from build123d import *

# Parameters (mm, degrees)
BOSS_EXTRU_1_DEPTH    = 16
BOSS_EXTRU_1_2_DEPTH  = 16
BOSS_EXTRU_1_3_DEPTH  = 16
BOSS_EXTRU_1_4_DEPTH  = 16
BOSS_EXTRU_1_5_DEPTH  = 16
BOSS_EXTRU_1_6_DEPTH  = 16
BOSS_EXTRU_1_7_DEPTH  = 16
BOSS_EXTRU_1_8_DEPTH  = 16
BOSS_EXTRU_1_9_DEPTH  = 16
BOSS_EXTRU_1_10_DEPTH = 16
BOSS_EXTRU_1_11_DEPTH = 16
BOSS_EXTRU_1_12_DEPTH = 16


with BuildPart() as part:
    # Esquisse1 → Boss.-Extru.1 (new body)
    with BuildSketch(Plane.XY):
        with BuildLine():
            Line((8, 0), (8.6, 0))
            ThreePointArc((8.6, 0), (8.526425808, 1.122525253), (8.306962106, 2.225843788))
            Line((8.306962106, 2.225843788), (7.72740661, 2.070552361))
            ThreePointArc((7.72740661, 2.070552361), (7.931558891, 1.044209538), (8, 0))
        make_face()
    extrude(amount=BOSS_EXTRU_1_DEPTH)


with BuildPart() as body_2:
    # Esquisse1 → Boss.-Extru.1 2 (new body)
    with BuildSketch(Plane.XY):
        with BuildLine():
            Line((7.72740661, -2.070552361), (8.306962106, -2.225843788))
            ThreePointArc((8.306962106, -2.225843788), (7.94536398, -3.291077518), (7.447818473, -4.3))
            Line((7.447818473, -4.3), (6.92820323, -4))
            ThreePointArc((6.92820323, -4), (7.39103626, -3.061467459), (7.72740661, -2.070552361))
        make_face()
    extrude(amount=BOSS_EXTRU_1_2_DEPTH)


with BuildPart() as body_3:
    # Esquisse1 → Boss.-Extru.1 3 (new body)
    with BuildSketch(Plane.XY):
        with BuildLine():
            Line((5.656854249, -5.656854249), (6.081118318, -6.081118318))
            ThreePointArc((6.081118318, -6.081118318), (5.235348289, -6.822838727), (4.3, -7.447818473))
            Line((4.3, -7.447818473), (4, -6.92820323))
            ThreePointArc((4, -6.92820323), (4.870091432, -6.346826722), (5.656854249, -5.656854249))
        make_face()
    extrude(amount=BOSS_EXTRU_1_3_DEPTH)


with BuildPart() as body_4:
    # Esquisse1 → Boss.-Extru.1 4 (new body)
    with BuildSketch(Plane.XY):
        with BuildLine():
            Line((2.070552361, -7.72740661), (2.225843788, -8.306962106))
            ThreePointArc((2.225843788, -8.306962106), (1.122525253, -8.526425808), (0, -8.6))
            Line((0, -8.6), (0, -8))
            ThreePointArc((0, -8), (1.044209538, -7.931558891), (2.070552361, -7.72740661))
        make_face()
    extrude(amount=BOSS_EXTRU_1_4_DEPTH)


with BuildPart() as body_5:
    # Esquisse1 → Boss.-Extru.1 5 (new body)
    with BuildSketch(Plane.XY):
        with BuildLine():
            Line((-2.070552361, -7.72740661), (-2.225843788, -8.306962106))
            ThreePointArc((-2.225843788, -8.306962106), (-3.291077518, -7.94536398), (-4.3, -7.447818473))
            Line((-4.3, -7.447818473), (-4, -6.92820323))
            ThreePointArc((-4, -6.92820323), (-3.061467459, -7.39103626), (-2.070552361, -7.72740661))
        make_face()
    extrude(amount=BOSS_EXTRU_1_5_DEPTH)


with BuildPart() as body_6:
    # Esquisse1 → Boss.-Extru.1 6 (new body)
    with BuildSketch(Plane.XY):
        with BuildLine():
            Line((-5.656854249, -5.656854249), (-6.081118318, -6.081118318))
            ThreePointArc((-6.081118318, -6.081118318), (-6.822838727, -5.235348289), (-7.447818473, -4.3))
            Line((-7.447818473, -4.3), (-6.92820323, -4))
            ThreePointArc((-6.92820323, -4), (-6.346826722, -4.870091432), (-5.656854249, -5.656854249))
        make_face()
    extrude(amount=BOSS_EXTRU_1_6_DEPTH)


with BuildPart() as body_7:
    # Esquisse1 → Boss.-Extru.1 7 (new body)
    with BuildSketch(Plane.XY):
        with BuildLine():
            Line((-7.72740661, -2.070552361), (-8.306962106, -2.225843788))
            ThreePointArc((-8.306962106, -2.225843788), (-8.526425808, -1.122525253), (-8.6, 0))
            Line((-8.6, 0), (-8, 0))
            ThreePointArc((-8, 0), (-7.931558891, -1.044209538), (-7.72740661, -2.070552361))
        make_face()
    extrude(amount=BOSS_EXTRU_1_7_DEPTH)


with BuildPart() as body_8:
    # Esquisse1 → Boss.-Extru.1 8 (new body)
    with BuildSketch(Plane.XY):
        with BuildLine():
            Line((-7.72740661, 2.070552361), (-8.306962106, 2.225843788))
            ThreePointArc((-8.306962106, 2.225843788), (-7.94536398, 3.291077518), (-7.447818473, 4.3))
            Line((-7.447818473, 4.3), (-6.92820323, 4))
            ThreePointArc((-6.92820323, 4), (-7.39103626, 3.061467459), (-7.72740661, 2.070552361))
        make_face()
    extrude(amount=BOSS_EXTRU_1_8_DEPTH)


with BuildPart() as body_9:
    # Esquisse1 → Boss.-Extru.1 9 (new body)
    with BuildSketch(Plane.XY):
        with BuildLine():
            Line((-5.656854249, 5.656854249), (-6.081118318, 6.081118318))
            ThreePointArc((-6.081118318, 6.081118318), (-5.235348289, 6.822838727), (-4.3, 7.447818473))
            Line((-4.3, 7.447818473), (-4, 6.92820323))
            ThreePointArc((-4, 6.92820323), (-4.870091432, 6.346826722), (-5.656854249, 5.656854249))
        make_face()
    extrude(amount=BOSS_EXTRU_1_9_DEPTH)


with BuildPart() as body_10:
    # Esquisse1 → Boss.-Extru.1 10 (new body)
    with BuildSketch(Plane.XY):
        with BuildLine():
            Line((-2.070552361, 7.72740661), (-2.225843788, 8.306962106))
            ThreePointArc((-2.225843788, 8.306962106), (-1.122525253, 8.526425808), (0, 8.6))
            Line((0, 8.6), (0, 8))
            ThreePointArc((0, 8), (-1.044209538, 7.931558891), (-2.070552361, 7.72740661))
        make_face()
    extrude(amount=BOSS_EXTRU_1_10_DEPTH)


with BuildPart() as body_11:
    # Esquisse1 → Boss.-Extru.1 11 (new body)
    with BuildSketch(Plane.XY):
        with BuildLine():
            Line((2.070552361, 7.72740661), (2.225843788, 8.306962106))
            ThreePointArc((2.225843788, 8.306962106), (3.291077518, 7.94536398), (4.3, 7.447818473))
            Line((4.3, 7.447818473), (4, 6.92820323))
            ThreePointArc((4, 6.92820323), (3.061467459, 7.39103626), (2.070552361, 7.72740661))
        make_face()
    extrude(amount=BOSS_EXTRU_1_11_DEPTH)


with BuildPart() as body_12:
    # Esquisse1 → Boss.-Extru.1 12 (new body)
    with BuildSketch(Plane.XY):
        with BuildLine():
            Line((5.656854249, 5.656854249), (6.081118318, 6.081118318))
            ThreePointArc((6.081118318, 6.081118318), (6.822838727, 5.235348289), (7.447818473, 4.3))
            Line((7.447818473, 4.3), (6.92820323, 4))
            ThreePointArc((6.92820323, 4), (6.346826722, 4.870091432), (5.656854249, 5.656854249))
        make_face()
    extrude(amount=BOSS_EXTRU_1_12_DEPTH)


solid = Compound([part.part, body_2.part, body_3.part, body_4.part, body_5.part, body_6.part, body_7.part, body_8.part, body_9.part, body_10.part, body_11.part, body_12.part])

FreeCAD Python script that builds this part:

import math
import FreeCAD as App
import Part
import Sketcher

V = App.Vector
Q = App.Units.Quantity

doc = App.newDocument("Part")
body = doc.addObject("PartDesign::Body", "Body")

sketch1 = body.newObject("Sketcher::SketchObject", "Sketch")
sketch1.AttachmentSupport = (doc.getObject("XY_Plane"), [""])
sketch1.MapMode = "FlatFace"
sketch1.addGeometry([
    Part.LineSegment(V(8, 0, 0), V(8.6, 0, 0)),
    Part.ArcOfCircle(Part.Circle(V(0, 0, 0), V(0, 0, 1), 8.6), math.radians(0), math.radians(15)),
    Part.LineSegment(V(8.3, 2.2, 0), V(7.7, 2.1, 0)),
    Part.ArcOfCircle(Part.Circle(V(0, 0, 0), V(0, 0, 1), 8), math.radians(0), math.radians(15)),
], False)
sketch1.addConstraint([
    Sketcher.Constraint("Coincident", 0, 2, 1, 1),
    Sketcher.Constraint("Coincident", 1, 2, 2, 1),
    Sketcher.Constraint("Coincident", 2, 2, 3, 2),
    Sketcher.Constraint("Coincident", 3, 1, 0, 1),
    Sketcher.Constraint("Horizontal", 0),
    Sketcher.Constraint("Coincident", 1, 3, -1, 1),
    Sketcher.Constraint("Coincident", 3, 3, -1, 1),
    Sketcher.Constraint("PointOnObject", 0, 2, -1),
    Sketcher.Constraint("Radius", 3, 8.0),
    Sketcher.Constraint("Radius", 1, 8.6),
    Sketcher.Constraint("Angle", 2, Q("-165 deg")),
    Sketcher.Constraint("DistanceX", -1, 1, 1, 2, 8.306962),
])
pad1 = body.newObject("PartDesign::Pad", "Pad")
pad1.Profile = sketch1
pad1.Length = 16
body2 = doc.addObject("PartDesign::Body", "Body001")

sketch2 = body2.newObject("Sketcher::SketchObject", "Sketch001")
sketch2.AttachmentSupport = (doc.getObject("XY_Plane001"), [""])
sketch2.MapMode = "FlatFace"
sketch2.addGeometry([
    Part.LineSegment(V(8.3, -2.2, 0), V(7.7, -2.1, 0)),
    Part.ArcOfCircle(Part.Circle(V(0, 0, 0), V(0, 0, 1), 8), math.radians(-30), math.radians(-15)),
    Part.LineSegment(V(6.9, -4, 0), V(7.4, -4.3, 0)),
    Part.ArcOfCircle(Part.Circle(V(0, 0, 0), V(0, 0, 1), 8.6), math.radians(-30), math.radians(-15)),
], False)
sketch2.addConstraint([
    Sketcher.Constraint("Coincident", 0, 2, 1, 2),
    Sketcher.Constraint("Coincident", 1, 1, 2, 1),
    Sketcher.Constraint("Coincident", 2, 2, 3, 1),
    Sketcher.Constraint("Coincident", 3, 2, 0, 1),
    Sketcher.Constraint("Coincident", 1, 3, -1, 1),
    Sketcher.Constraint("Coincident", 3, 3, -1, 1),
    Sketcher.Constraint("Radius", 1, 8.0),
    Sketcher.Constraint("Radius", 3, 8.6),
    Sketcher.Constraint("Angle", 0, Q("165 deg")),
    Sketcher.Constraint("Angle", 2, Q("-30 deg")),
    Sketcher.Constraint("DistanceY", 1, 1, -1, 1, 4.0),
    Sketcher.Constraint("DistanceX", 2, 2, 0, 2, 0.279588),
])
pad2 = body2.newObject("PartDesign::Pad", "Pad001")
pad2.Profile = sketch2
pad2.Length = 16
body3 = doc.addObject("PartDesign::Body", "Body002")

sketch3 = body3.newObject("Sketcher::SketchObject", "Sketch002")
sketch3.AttachmentSupport = (doc.getObject("XY_Plane002"), [""])
sketch3.MapMode = "FlatFace"
sketch3.addGeometry([
    Part.LineSegment(V(6.1, -6.1, 0), V(5.7, -5.7, 0)),
    Part.ArcOfCircle(Part.Circle(V(0, 0, 0), V(0, 0, 1), 8), math.radians(-60), math.radians(-45)),
    Part.LineSegment(V(4, -6.9, 0), V(4.3, -7.4, 0)),
    Part.ArcOfCircle(Part.Circle(V(0, 0, 0), V(0, 0, 1), 8.6), math.radians(-60), math.radians(-45)),
], False)
sketch3.addConstraint([
    Sketcher.Constraint("Coincident", 0, 2, 1, 2),
    Sketcher.Constraint("Coincident", 1, 1, 2, 1),
    Sketcher.Constraint("Coincident", 2, 2, 3, 1),
    Sketcher.Constraint("Coincident", 3, 2, 0, 1),
    Sketcher.Constraint("Coincident", 1, 3, -1, 1),
    Sketcher.Constraint("Coincident", 3, 3, -1, 1),
    Sketcher.Constraint("Radius", 1, 8.0),
    Sketcher.Constraint("Radius", 3, 8.6),
    Sketcher.Constraint("Angle", 0, Q("135 deg")),
    Sketcher.Constraint("Angle", 2, Q("-60 deg")),
    Sketcher.Constraint("DistanceX", -1, 1, 1, 1, 4.0),
    Sketcher.Constraint("DistanceY", 2, 2, 3, 2, 1.3667),
])
pad3 = body3.newObject("PartDesign::Pad", "Pad002")
pad3.Profile = sketch3
pad3.Length = 16
body4 = doc.addObject("PartDesign::Body", "Body003")

sketch4 = body4.newObject("Sketcher::SketchObject", "Sketch003")
sketch4.AttachmentSupport = (doc.getObject("XY_Plane003"), [""])
sketch4.MapMode = "FlatFace"
sketch4.addGeometry([
    Part.LineSegment(V(2.2, -8.3, 0), V(2.1, -7.7, 0)),
    Part.ArcOfCircle(Part.Circle(V(0, 0, 0), V(0, 0, 1), 8), math.radians(-90), math.radians(-75)),
    Part.LineSegment(V(0, -8, 0), V(0, -8.6, 0)),
    Part.ArcOfCircle(Part.Circle(V(0, 0, 0), V(0, 0, 1), 8.6), math.radians(-90), math.radians(-75)),
], False)
sketch4.addConstraint([
    Sketcher.Constraint("Coincident", 0, 2, 1, 2),
    Sketcher.Constraint("Coincident", 1, 1, 2, 1),
    Sketcher.Constraint("Coincident", 2, 2, 3, 1),
    Sketcher.Constraint("Coincident", 3, 2, 0, 1),
    Sketcher.Constraint("Vertical", 2),
    Sketcher.Constraint("Coincident", 1, 3, -1, 1),
    Sketcher.Constraint("Coincident", 3, 3, -1, 1),
    Sketcher.Constraint("PointOnObject", 1, 1, -2),
    Sketcher.Constraint("Radius", 1, 8.0),
    Sketcher.Constraint("Radius", 3, 8.6),
    Sketcher.Constraint("Angle", 0, Q("105 deg")),
    Sketcher.Constraint("DistanceX", -1, 1, 0, 2, 2.070552),
])
pad4 = body4.newObject("PartDesign::Pad", "Pad003")
pad4.Profile = sketch4
pad4.Length = 16
body5 = doc.addObject("PartDesign::Body", "Body004")

sketch5 = body5.newObject("Sketcher::SketchObject", "Sketch004")
sketch5.AttachmentSupport = (doc.getObject("XY_Plane004"), [""])
sketch5.MapMode = "FlatFace"
sketch5.addGeometry([
    Part.LineSegment(V(-2.2, -8.3, 0), V(-2.1, -7.7, 0)),
    Part.ArcOfCircle(Part.Circle(V(0, 0, 0), V(0, 0, 1), 8), math.radians(-120), math.radians(-105)),
    Part.LineSegment(V(-4, -6.9, 0), V(-4.3, -7.4, 0)),
    Part.ArcOfCircle(Part.Circle(V(0, 0, 0), V(0, 0, 1), 8.6), math.radians(-120), math.radians(-105)),
], False)
sketch5.addConstraint([
    Sketcher.Constraint("Coincident", 0, 2, 1, 2),
    Sketcher.Constraint("Coincident", 1, 1, 2, 1),
    Sketcher.Constraint("Coincident", 2, 2, 3, 1),
    Sketcher.Constraint("Coincident", 3, 2, 0, 1),
    Sketcher.Constraint("Coincident", 1, 3, -1, 1),
    Sketcher.Constraint("Coincident", 3, 3, -1, 1),
    Sketcher.Constraint("Radius", 1, 8.0),
    Sketcher.Constraint("Radius", 3, 8.6),
    Sketcher.Constraint("Angle", 0, Q("75 deg")),
    Sketcher.Constraint("Angle", 2, Q("-120 deg")),
    Sketcher.Constraint("DistanceX", 1, 1, -1, 1, 4.0),
    Sketcher.Constraint("DistanceY", 0, 2, 2, 2, 0.279588),
])
pad5 = body5.newObject("PartDesign::Pad", "Pad004")
pad5.Profile = sketch5
pad5.Length = 16
body6 = doc.addObject("PartDesign::Body", "Body005")

sketch6 = body6.newObject("Sketcher::SketchObject", "Sketch005")
sketch6.AttachmentSupport = (doc.getObject("XY_Plane005"), [""])
sketch6.MapMode = "FlatFace"
sketch6.addGeometry([
    Part.LineSegment(V(-6.1, -6.1, 0), V(-5.7, -5.7, 0)),
    Part.ArcOfCircle(Part.Circle(V(0, 0, 0), V(0, 0, 1), 8), math.radians(-150), math.radians(-135)),
    Part.LineSegment(V(-6.9, -4, 0), V(-7.4, -4.3, 0)),
    Part.ArcOfCircle(Part.Circle(V(0, 0, 0), V(0, 0, 1), 8.6), math.radians(-150), math.radians(-135)),
], False)
sketch6.addConstraint([
    Sketcher.Constraint("Coincident", 0, 2, 1, 2),
    Sketcher.Constraint("Coincident", 1, 1, 2, 1),
    Sketcher.Constraint("Coincident", 2, 2, 3, 1),
    Sketcher.Constraint("Coincident", 3, 2, 0, 1),
    Sketcher.Constraint("Coincident", 1, 3, -1, 1),
    Sketcher.Constraint("Coincident", 3, 3, -1, 1),
    Sketcher.Constraint("Radius", 1, 8.0),
    Sketcher.Constraint("Radius", 3, 8.6),
    Sketcher.Constraint("Angle", 0, Q("45 deg")),
    Sketcher.Constraint("Angle", 2, Q("-150 deg")),
    Sketcher.Constraint("DistanceY", 1, 1, -1, 1, 4.0),
    Sketcher.Constraint("DistanceX", 2, 2, 3, 2, 1.3667),
])
pad6 = body6.newObject("PartDesign::Pad", "Pad005")
pad6.Profile = sketch6
pad6.Length = 16
body7 = doc.addObject("PartDesign::Body", "Body006")

sketch7 = body7.newObject("Sketcher::SketchObject", "Sketch006")
sketch7.AttachmentSupport = (doc.getObject("XY_Plane006"), [""])
sketch7.MapMode = "FlatFace"
sketch7.addGeometry([
    Part.LineSegment(V(-8.3, -2.2, 0), V(-7.7, -2.1, 0)),
    Part.ArcOfCircle(Part.Circle(V(0, 0, 0), V(0, 0, 1), 8), math.radians(180), math.radians(195)),
    Part.LineSegment(V(-8, 0, 0), V(-8.6, 0, 0)),
    Part.ArcOfCircle(Part.Circle(V(0, 0, 0), V(0, 0, 1), 8.6), math.radians(180), math.radians(195)),
], False)
sketch7.addConstraint([
    Sketcher.Constraint("Coincident", 0, 2, 1, 2),
    Sketcher.Constraint("Coincident", 1, 1, 2, 1),
    Sketcher.Constraint("Coincident", 2, 2, 3, 1),
    Sketcher.Constraint("Coincident", 3, 2, 0, 1),
    Sketcher.Constraint("Horizontal", 2),
    Sketcher.Constraint("Coincident", 1, 3, -1, 1),
    Sketcher.Constraint("Coincident", 3, 3, -1, 1),
    Sketcher.Constraint("PointOnObject", 1, 1, -1),
    Sketcher.Constraint("Radius", 1, 8.0),
    Sketcher.Constraint("Radius", 3, 8.6),
    Sketcher.Constraint("Angle", 0, Q("15 deg")),
    Sketcher.Constraint("DistanceX", 0, 2, -1, 1, 7.727407),
])
pad7 = body7.newObject("PartDesign::Pad", "Pad006")
pad7.Profile = sketch7
pad7.Length = 16
body8 = doc.addObject("PartDesign::Body", "Body007")

sketch8 = body8.newObject("Sketcher::SketchObject", "Sketch007")
sketch8.AttachmentSupport = (doc.getObject("XY_Plane007"), [""])
sketch8.MapMode = "FlatFace"
sketch8.addGeometry([
    Part.LineSegment(V(-8.3, 2.2, 0), V(-7.7, 2.1, 0)),
    Part.ArcOfCircle(Part.Circle(V(0, 0, 0), V(0, 0, 1), 8), math.radians(150), math.radians(165)),
    Part.LineSegment(V(-6.9, 4, 0), V(-7.4, 4.3, 0)),
    Part.ArcOfCircle(Part.Circle(V(0, 0, 0), V(0, 0, 1), 8.6), math.radians(150), math.radians(165)),
], False)
sketch8.addConstraint([
    Sketcher.Constraint("Coincident", 0, 2, 1, 2),
    Sketcher.Constraint("Coincident", 1, 1, 2, 1),
    Sketcher.Constraint("Coincident", 2, 2, 3, 1),
    Sketcher.Constraint("Coincident", 3, 2, 0, 1),
    Sketcher.Constraint("Coincident", 1, 3, -1, 1),
    Sketcher.Constraint("Coincident", 3, 3, -1, 1),
    Sketcher.Constraint("Radius", 1, 8.0),
    Sketcher.Constraint("Radius", 3, 8.6),
    Sketcher.Constraint("Angle", 0, Q("-15 deg")),
    Sketcher.Constraint("Angle", 2, Q("150 deg")),
    Sketcher.Constraint("DistanceY", -1, 1, 1, 1, 4.0),
    Sketcher.Constraint("DistanceX", 0, 2, 2, 2, 0.279588),
])
pad8 = body8.newObject("PartDesign::Pad", "Pad007")
pad8.Profile = sketch8
pad8.Length = 16
body9 = doc.addObject("PartDesign::Body", "Body008")

sketch9 = body9.newObject("Sketcher::SketchObject", "Sketch008")
sketch9.AttachmentSupport = (doc.getObject("XY_Plane008"), [""])
sketch9.MapMode = "FlatFace"
sketch9.addGeometry([
    Part.LineSegment(V(-6.1, 6.1, 0), V(-5.7, 5.7, 0)),
    Part.ArcOfCircle(Part.Circle(V(0, 0, 0), V(0, 0, 1), 8), math.radians(120), math.radians(135)),
    Part.LineSegment(V(-4, 6.9, 0), V(-4.3, 7.4, 0)),
    Part.ArcOfCircle(Part.Circle(V(0, 0, 0), V(0, 0, 1), 8.6), math.radians(120), math.radians(135)),
], False)
sketch9.addConstraint([
    Sketcher.Constraint("Coincident", 0, 2, 1, 2),
    Sketcher.Constraint("Coincident", 1, 1, 2, 1),
    Sketcher.Constraint("Coincident", 2, 2, 3, 1),
    Sketcher.Constraint("Coincident", 3, 2, 0, 1),
    Sketcher.Constraint("Coincident", 1, 3, -1, 1),
    Sketcher.Constraint("Coincident", 3, 3, -1, 1),
    Sketcher.Constraint("Radius", 1, 8.0),
    Sketcher.Constraint("Radius", 3, 8.6),
    Sketcher.Constraint("Angle", 0, Q("-45 deg")),
    Sketcher.Constraint("Angle", 2, Q("120 deg")),
    Sketcher.Constraint("DistanceX", 1, 1, -1, 1, 4.0),
    Sketcher.Constraint("DistanceY", 3, 2, 2, 2, 1.3667),
])
pad9 = body9.newObject("PartDesign::Pad", "Pad008")
pad9.Profile = sketch9
pad9.Length = 16
body10 = doc.addObject("PartDesign::Body", "Body009")

sketch10 = body10.newObject("Sketcher::SketchObject", "Sketch009")
sketch10.AttachmentSupport = (doc.getObject("XY_Plane009"), [""])
sketch10.MapMode = "FlatFace"
sketch10.addGeometry([
    Part.LineSegment(V(-2.2, 8.3, 0), V(-2.1, 7.7, 0)),
    Part.ArcOfCircle(Part.Circle(V(0, 0, 0), V(0, 0, 1), 8), math.radians(90), math.radians(105)),
    Part.LineSegment(V(0, 8, 0), V(0, 8.6, 0)),
    Part.ArcOfCircle(Part.Circle(V(0, 0, 0), V(0, 0, 1), 8.6), math.radians(90), math.radians(105)),
], False)
sketch10.addConstraint([
    Sketcher.Constraint("Coincident", 0, 2, 1, 2),
    Sketcher.Constraint("Coincident", 1, 1, 2, 1),
    Sketcher.Constraint("Coincident", 2, 2, 3, 1),
    Sketcher.Constraint("Coincident", 3, 2, 0, 1),
    Sketcher.Constraint("Vertical", 2),
    Sketcher.Constraint("Coincident", 1, 3, -1, 1),
    Sketcher.Constraint("Coincident", 3, 3, -1, 1),
    Sketcher.Constraint("PointOnObject", 1, 1, -2),
    Sketcher.Constraint("Radius", 1, 8.0),
    Sketcher.Constraint("Radius", 3, 8.6),
    Sketcher.Constraint("Angle", 0, Q("-75 deg")),
    Sketcher.Constraint("DistanceX", 0, 2, -1, 1, 2.070552),
])
pad10 = body10.newObject("PartDesign::Pad", "Pad009")
pad10.Profile = sketch10
pad10.Length = 16
body11 = doc.addObject("PartDesign::Body", "Body010")

sketch11 = body11.newObject("Sketcher::SketchObject", "Sketch010")
sketch11.AttachmentSupport = (doc.getObject("XY_Plane010"), [""])
sketch11.MapMode = "FlatFace"
sketch11.addGeometry([
    Part.LineSegment(V(2.2, 8.3, 0), V(2.1, 7.7, 0)),
    Part.ArcOfCircle(Part.Circle(V(0, 0, 0), V(0, 0, 1), 8), math.radians(60), math.radians(75)),
    Part.LineSegment(V(4, 6.9, 0), V(4.3, 7.4, 0)),
    Part.ArcOfCircle(Part.Circle(V(0, 0, 0), V(0, 0, 1), 8.6), math.radians(60), math.radians(75)),
], False)
sketch11.addConstraint([
    Sketcher.Constraint("Coincident", 0, 2, 1, 2),
    Sketcher.Constraint("Coincident", 1, 1, 2, 1),
    Sketcher.Constraint("Coincident", 2, 2, 3, 1),
    Sketcher.Constraint("Coincident", 3, 2, 0, 1),
    Sketcher.Constraint("Coincident", 1, 3, -1, 1),
    Sketcher.Constraint("Coincident", 3, 3, -1, 1),
    Sketcher.Constraint("Radius", 1, 8.0),
    Sketcher.Constraint("Radius", 3, 8.6),
    Sketcher.Constraint("Angle", 0, Q("-105 deg")),
    Sketcher.Constraint("Angle", 2, Q("60 deg")),
    Sketcher.Constraint("DistanceX", -1, 1, 1, 1, 4.0),
    Sketcher.Constraint("DistanceY", 2, 2, 0, 2, 0.279588),
])
pad11 = body11.newObject("PartDesign::Pad", "Pad010")
pad11.Profile = sketch11
pad11.Length = 16
body12 = doc.addObject("PartDesign::Body", "Body011")

sketch12 = body12.newObject("Sketcher::SketchObject", "Sketch011")
sketch12.AttachmentSupport = (doc.getObject("XY_Plane011"), [""])
sketch12.MapMode = "FlatFace"
sketch12.addGeometry([
    Part.LineSegment(V(6.1, 6.1, 0), V(5.7, 5.7, 0)),
    Part.ArcOfCircle(Part.Circle(V(0, 0, 0), V(0, 0, 1), 8), math.radians(30), math.radians(45)),
    Part.LineSegment(V(6.9, 4, 0), V(7.4, 4.3, 0)),
    Part.ArcOfCircle(Part.Circle(V(0, 0, 0), V(0, 0, 1), 8.6), math.radians(30), math.radians(45)),
], False)
sketch12.addConstraint([
    Sketcher.Constraint("Coincident", 0, 2, 1, 2),
    Sketcher.Constraint("Coincident", 1, 1, 2, 1),
    Sketcher.Constraint("Coincident", 2, 2, 3, 1),
    Sketcher.Constraint("Coincident", 3, 2, 0, 1),
    Sketcher.Constraint("Coincident", 1, 3, -1, 1),
    Sketcher.Constraint("Coincident", 3, 3, -1, 1),
    Sketcher.Constraint("Radius", 1, 8.0),
    Sketcher.Constraint("Radius", 3, 8.6),
    Sketcher.Constraint("Angle", 0, Q("-135 deg")),
    Sketcher.Constraint("Angle", 2, Q("30 deg")),
    Sketcher.Constraint("DistanceY", -1, 1, 1, 1, 4.0),
    Sketcher.Constraint("DistanceX", 3, 2, 2, 2, 1.3667),
])
pad12 = body12.newObject("PartDesign::Pad", "Pad011")
pad12.Profile = sketch12
pad12.Length = 16

doc.recompute()
